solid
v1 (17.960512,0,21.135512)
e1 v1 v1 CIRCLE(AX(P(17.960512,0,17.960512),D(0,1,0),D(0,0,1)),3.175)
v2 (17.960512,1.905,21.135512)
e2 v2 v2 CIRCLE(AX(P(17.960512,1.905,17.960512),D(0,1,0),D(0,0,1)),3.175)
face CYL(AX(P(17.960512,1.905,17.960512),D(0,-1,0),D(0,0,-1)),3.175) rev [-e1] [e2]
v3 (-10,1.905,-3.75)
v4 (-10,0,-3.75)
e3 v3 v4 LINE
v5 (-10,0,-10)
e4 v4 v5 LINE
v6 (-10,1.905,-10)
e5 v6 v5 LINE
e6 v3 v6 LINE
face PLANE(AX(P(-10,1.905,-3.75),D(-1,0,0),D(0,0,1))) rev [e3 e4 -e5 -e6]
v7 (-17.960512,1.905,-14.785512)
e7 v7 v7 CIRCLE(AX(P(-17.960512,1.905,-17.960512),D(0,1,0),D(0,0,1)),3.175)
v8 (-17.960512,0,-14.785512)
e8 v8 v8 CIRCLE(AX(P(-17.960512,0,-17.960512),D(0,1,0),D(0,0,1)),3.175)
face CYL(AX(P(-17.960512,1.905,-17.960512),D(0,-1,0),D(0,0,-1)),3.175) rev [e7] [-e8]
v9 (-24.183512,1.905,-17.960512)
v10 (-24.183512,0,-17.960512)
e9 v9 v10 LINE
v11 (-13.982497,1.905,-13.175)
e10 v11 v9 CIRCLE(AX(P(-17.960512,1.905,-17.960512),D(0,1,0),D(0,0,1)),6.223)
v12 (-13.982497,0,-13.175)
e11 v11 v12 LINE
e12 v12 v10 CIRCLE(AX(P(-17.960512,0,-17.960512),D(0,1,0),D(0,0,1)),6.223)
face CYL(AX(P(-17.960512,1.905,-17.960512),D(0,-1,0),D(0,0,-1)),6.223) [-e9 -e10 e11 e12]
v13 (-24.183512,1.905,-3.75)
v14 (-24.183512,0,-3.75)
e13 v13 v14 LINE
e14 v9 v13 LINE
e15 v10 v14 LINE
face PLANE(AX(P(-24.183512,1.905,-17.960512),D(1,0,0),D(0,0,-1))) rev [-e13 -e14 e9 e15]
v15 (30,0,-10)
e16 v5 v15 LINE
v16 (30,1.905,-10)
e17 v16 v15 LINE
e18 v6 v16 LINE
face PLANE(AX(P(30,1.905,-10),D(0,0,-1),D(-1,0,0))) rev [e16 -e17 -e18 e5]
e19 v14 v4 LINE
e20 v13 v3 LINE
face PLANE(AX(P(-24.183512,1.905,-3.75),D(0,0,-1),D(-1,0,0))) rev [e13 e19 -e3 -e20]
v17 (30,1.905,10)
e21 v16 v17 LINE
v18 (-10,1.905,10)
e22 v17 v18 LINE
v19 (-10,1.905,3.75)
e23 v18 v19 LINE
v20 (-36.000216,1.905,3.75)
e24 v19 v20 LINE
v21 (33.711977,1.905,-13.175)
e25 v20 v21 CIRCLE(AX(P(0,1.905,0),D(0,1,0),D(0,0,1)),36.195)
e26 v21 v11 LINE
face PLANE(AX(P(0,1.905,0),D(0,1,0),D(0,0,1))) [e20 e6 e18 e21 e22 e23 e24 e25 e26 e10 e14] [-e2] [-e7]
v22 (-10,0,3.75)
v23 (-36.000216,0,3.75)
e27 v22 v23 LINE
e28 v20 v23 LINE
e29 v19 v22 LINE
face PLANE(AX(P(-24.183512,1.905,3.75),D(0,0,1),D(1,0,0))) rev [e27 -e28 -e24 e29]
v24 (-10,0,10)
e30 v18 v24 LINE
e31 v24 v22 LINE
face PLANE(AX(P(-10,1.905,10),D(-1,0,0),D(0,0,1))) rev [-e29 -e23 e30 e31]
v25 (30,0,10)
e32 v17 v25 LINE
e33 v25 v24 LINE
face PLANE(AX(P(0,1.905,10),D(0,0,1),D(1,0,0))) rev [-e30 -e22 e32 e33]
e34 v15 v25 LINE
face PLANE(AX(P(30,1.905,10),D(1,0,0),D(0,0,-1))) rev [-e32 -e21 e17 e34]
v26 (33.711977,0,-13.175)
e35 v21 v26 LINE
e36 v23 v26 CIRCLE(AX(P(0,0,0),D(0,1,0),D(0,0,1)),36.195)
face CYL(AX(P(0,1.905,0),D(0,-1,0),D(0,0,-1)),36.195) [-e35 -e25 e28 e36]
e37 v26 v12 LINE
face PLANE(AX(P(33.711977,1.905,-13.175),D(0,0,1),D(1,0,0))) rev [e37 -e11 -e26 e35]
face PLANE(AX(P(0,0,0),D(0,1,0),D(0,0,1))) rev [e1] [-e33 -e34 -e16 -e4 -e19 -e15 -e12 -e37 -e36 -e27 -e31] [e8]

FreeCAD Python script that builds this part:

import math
import FreeCAD as App
import Part
import Sketcher

V = App.Vector
Q = App.Units.Quantity

doc = App.newDocument("Part")
body = doc.addObject("PartDesign::Body", "Body")

# Sketch on XZ plane
sketch1 = body.newObject("Sketcher::SketchObject", "Sketch")
sketch1.AttachmentSupport = (doc.getObject("XZ_Plane"), [""])
sketch1.MapMode = "FlatFace"
sketch1.addGeometry(Part.LineSegment(V(-24.2, -18, 0), V(-24.2, -3.8, 0)), False)
sketch1.addGeometry(Part.LineSegment(V(-24.2, -3.8, 0), V(-10, -3.8, 0)), False)
sketch1.addGeometry(Part.LineSegment(V(-10, -3.8, 0), V(-10, -10, 0)), False)
sketch1.addGeometry(Part.LineSegment(V(-10, -10, 0), V(30, -10, 0)), False)
sketch1.addGeometry(Part.LineSegment(V(30, -10, 0), V(30, 10, 0)), False)
sketch1.addGeometry(Part.LineSegment(V(30, 10, 0), V(-10, 10, 0)), False)
sketch1.addGeometry(Part.LineSegment(V(-10, 10, 0), V(-10, 3.8, 0)), False)
sketch1.addGeometry(Part.LineSegment(V(-10, 3.8, 0), V(-36, 3.8, 0)), False)
sketch1.addGeometry(Part.ArcOfCircle(Part.Circle(V(0, 0, 0), V(0, 0, 1), 36.2), math.radians(-21), math.radians(174)), False)
sketch1.addGeometry(Part.LineSegment(V(33.7, -13.2, 0), V(-14, -13.2, 0)), False)
sketch1.addGeometry(Part.ArcOfCircle(Part.Circle(V(-18, -18, 0), V(0, 0, 1), 6.2), math.radians(0), math.radians(50)), False)
sketch1.addGeometry(Part.ArcOfCircle(Part.Circle(V(-18, -18, 0), V(0, 0, 1), 6.2), math.radians(-90), math.radians(0)), False)
sketch1.addGeometry(Part.ArcOfCircle(Part.Circle(V(-18, -18, 0), V(0, 0, 1), 6.2), math.radians(-180), math.radians(-90)), False)
sketch1.addGeometry(Part.Circle(V(18, 18, 0), V(0, 0, 1), 3.2), False)
sketch1.addGeometry(Part.Circle(V(-18, -18, 0), V(0, 0, 1), 3.2), False)
sketch1.addConstraint(Sketcher.Constraint("Coincident", 0, 2, 1, 1))
sketch1.addConstraint(Sketcher.Constraint("Coincident", 1, 2, 2, 1))
sketch1.addConstraint(Sketcher.Constraint("Coincident", 2, 2, 3, 1))
sketch1.addConstraint(Sketcher.Constraint("Coincident", 3, 2, 4, 1))
sketch1.addConstraint(Sketcher.Constraint("Coincident", 4, 2, 5, 1))
sketch1.addConstraint(Sketcher.Constraint("Coincident", 5, 2, 6, 1))
sketch1.addConstraint(Sketcher.Constraint("Coincident", 6, 2, 7, 1))
sketch1.addConstraint(Sketcher.Constraint("Coincident", 7, 2, 8, 2))
sketch1.addConstraint(Sketcher.Constraint("Coincident", 8, 1, 9, 1))
sketch1.addConstraint(Sketcher.Constraint("Coincident", 9, 2, 10, 2))
sketch1.addConstraint(Sketcher.Constraint("Tangent", 10, 1, 11, 2))
sketch1.addConstraint(Sketcher.Constraint("Tangent", 11, 1, 12, 2))
sketch1.addConstraint(Sketcher.Constraint("Tangent", 12, 1, 0, 1))
sketch1.addConstraint(Sketcher.Constraint("Vertical", 0))
sketch1.addConstraint(Sketcher.Constraint("Horizontal", 1))
sketch1.addConstraint(Sketcher.Constraint("Vertical", 2))
sketch1.addConstraint(Sketcher.Constraint("Horizontal", 3))
sketch1.addConstraint(Sketcher.Constraint("Vertical", 4))
sketch1.addConstraint(Sketcher.Constraint("Horizontal", 5))
sketch1.addConstraint(Sketcher.Constraint("Vertical", 6))
sketch1.addConstraint(Sketcher.Constraint("Horizontal", 7))
sketch1.addConstraint(Sketcher.Constraint("Horizontal", 9))
sketch1.addConstraint(Sketcher.Constraint("Coincident", 8, 3, -1, 1))
sketch1.addConstraint(Sketcher.Constraint("Coincident", 12, 3, 10, 3))
sketch1.addConstraint(Sketcher.Constraint("Coincident", 14, 3, 10, 3))
sketch1.addConstraint(Sketcher.Constraint("Equal", 13, 14))
sketch1.addConstraint(Sketcher.Constraint("Symmetric", 10, 3, 13, 3, -1, 1))
sketch1.addConstraint(Sketcher.Constraint("Symmetric", 2, 2, 5, 2, -1))
sketch1.addConstraint(Sketcher.Constraint("Horizontal", 14, 3, 10, 1))
sketch1.addConstraint(Sketcher.Constraint("Vertical", 14, 3, 11, 1))
sketch1.addConstraint(Sketcher.Constraint("Equal", 2, 6))
sketch1.addConstraint(Sketcher.Constraint("Diameter", 13, Q("0.25 in")))
sketch1.addConstraint(Sketcher.Constraint("Radius", 8, Q("1.425 in")))
sketch1.addConstraint(Sketcher.Constraint("Radius", 10, Q("0.245 in")))
sketch1.addConstraint(Sketcher.Constraint("DistanceY", 8, 1, 3, 2, Q("0.125 in")))
sketch1.addConstraint(Sketcher.Constraint("DistanceX", 3, 1, 3, 2, Q("40 mm")))
sketch1.addConstraint(Sketcher.Constraint("DistanceY", 2, 2, 2, 1, Q("6.25 mm")))
sketch1.addConstraint(Sketcher.Constraint("DistanceY", 4, 1, 4, 2, Q("20 mm")))
sketch1.addConstraint(Sketcher.Constraint("DistanceX", 1, 2, -1, 1, Q("10 mm")))
sketch1.addConstraint(Sketcher.Constraint("DistanceX", 1, 1, 1, 2, Q("14.183512 mm")))
sketch1.addConstraint(Sketcher.Constraint("DistanceX", 9, 2, 9, 1, Q("47.694475 mm")))
pad1 = body.newObject("PartDesign::Pad", "Pad")
pad1.Profile = sketch1
pad1.Length = Q("0.075 in")
pad1.Reversed = True

doc.recompute()
